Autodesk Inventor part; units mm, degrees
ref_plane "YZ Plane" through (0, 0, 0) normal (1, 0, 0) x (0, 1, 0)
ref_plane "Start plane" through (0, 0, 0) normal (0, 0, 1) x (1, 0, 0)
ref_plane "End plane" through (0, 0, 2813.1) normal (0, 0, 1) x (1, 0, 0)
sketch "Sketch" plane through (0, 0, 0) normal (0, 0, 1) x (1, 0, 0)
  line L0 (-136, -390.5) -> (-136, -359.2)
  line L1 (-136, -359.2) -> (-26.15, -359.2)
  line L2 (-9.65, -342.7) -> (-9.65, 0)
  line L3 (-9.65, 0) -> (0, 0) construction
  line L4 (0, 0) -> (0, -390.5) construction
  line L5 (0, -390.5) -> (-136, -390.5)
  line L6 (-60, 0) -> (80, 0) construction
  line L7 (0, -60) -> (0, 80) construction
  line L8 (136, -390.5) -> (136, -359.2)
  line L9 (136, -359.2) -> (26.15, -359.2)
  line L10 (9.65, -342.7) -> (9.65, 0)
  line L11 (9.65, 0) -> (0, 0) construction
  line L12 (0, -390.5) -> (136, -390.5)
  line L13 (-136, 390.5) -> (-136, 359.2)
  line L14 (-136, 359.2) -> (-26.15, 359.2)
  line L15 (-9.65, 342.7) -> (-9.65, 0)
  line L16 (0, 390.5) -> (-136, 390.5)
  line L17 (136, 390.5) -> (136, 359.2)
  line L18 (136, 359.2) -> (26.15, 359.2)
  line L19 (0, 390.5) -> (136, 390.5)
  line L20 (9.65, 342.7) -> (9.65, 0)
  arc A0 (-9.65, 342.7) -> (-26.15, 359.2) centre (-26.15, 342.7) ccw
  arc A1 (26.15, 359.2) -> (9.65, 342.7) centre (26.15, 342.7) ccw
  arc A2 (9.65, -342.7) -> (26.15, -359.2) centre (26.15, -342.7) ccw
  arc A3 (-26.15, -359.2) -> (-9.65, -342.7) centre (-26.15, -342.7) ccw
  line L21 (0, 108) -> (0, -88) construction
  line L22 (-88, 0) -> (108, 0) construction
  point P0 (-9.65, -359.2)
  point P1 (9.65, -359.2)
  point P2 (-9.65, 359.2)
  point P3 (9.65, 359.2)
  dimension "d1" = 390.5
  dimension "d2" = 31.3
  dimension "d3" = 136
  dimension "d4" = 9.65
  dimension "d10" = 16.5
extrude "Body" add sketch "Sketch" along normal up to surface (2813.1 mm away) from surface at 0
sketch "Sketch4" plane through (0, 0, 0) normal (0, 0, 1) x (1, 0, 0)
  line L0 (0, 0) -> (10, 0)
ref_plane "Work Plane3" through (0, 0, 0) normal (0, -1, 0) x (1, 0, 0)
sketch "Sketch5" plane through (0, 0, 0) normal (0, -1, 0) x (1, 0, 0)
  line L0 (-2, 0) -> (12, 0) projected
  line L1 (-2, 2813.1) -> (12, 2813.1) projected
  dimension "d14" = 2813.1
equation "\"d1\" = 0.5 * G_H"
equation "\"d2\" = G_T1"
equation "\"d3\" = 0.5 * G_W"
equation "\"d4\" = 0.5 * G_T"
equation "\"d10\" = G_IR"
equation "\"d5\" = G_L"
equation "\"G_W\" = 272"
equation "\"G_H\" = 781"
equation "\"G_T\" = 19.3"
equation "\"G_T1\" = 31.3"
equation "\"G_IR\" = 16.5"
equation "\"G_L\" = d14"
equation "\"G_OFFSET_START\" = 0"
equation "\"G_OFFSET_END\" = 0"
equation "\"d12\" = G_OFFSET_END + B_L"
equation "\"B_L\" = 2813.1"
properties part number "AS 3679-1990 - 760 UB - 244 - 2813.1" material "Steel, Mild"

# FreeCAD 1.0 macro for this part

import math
import FreeCAD as App
import Part
import Sketcher

V = App.Vector
Q = App.Units.Quantity

doc = App.newDocument("Part")
body = doc.addObject("PartDesign::Body", "Body")

# Sketch on XY plane
sketch1 = body.newObject("Sketcher::SketchObject", "Sketch")
sketch1.AttachmentSupport = (doc.getObject("XY_Plane"), [""])
sketch1.MapMode = "FlatFace"
sketch1.addGeometry([
    Part.LineSegment(V(-136, -359.2, 0), V(-136, -390.5, 0)),  # 0
    Part.LineSegment(V(-136, -390.5, 0), V(136, -390.5, 0)),  # 1
    Part.LineSegment(V(136, -390.5, 0), V(136, -359.2, 0)),  # 2
    Part.LineSegment(V(136, -359.2, 0), V(26.15, -359.2, 0)),  # 3
    Part.ArcOfCircle(Part.Circle(V(26.15, -342.7, 0), V(0, 0, 1), 16.5), math.radians(180), math.radians(270)),  # 4
    Part.LineSegment(V(9.65, -342.7, 0), V(9.65, 342.7, 0)),  # 5
    Part.ArcOfCircle(Part.Circle(V(26.15, 342.7, 0), V(0, 0, 1), 16.5), math.radians(90), math.radians(180)),  # 6
    Part.LineSegment(V(26.15, 359.2, 0), V(136, 359.2, 0)),  # 7
    Part.LineSegment(V(136, 359.2, 0), V(136, 390.5, 0)),  # 8
    Part.LineSegment(V(136, 390.5, 0), V(-136, 390.5, 0)),  # 9
    Part.LineSegment(V(-136, 390.5, 0), V(-136, 359.2, 0)),  # 10
    Part.LineSegment(V(-136, 359.2, 0), V(-26.15, 359.2, 0)),  # 11
    Part.ArcOfCircle(Part.Circle(V(-26.15, 342.7, 0), V(0, 0, 1), 16.5), math.radians(0), math.radians(90)),  # 12
    Part.LineSegment(V(-9.65, 342.7, 0), V(-9.65, -342.7, 0)),  # 13
    Part.ArcOfCircle(Part.Circle(V(-26.15, -342.7, 0), V(0, 0, 1), 16.5), math.radians(-90), math.radians(0)),  # 14
    Part.LineSegment(V(-26.15, -359.2, 0), V(-136, -359.2, 0)),  # 15
], False)
sketch1.addConstraint([
    Sketcher.Constraint("Coincident", 0, 2, 1, 1),
    Sketcher.Constraint("Coincident", 1, 2, 2, 1),
    Sketcher.Constraint("Coincident", 2, 2, 3, 1),
    Sketcher.Constraint("Tangent", 3, 2, 4, 2),
    Sketcher.Constraint("Tangent", 4, 1, 5, 1),
    Sketcher.Constraint("Tangent", 5, 2, 6, 2),
    Sketcher.Constraint("Tangent", 6, 1, 7, 1),
    Sketcher.Constraint("Coincident", 7, 2, 8, 1),
    Sketcher.Constraint("Coincident", 8, 2, 9, 1),
    Sketcher.Constraint("Coincident", 9, 2, 10, 1),
    Sketcher.Constraint("Coincident", 10, 2, 11, 1),
    Sketcher.Constraint("Tangent", 11, 2, 12, 2),
    Sketcher.Constraint("Tangent", 12, 1, 13, 1),
    Sketcher.Constraint("Tangent", 13, 2, 14, 2),
    Sketcher.Constraint("Tangent", 14, 1, 15, 1),
    Sketcher.Constraint("Coincident", 15, 2, 0, 1),
    Sketcher.Constraint("Vertical", 0),
    Sketcher.Constraint("Horizontal", 1),
    Sketcher.Constraint("Vertical", 2),
    Sketcher.Constraint("Horizontal", 3),
    Sketcher.Constraint("Vertical", 5),
    Sketcher.Constraint("Horizontal", 7),
    Sketcher.Constraint("Vertical", 8),
    Sketcher.Constraint("Horizontal", 9),
    Sketcher.Constraint("Vertical", 10),
    Sketcher.Constraint("Horizontal", 11),
    Sketcher.Constraint("Vertical", 13),
    Sketcher.Constraint("Horizontal", 15),
    Sketcher.Constraint("Equal", 4, 6),
    Sketcher.Constraint("Equal", 6, 12),
    Sketcher.Constraint("Equal", 12, 14),
    Sketcher.Constraint("Symmetric", 4, 3, 12, 3, -1, 1),
    Sketcher.Constraint("Symmetric", 0, 2, 8, 2, -1, 1),
    Sketcher.Constraint("Symmetric", 7, 2, 10, 2, -2),
    Sketcher.Constraint("Symmetric", 2, 2, 15, 2, -2),
    Sketcher.Constraint("Radius", 4, Q("16.5 mm")),
    Sketcher.Constraint("DistanceY", 0, 2, 0, 1, Q("31.3 mm")),
    Sketcher.Constraint("DistanceX", 0, 2, -1, 1, Q("136 mm")),
    Sketcher.Constraint("DistanceY", 0, 2, -1, 1, Q("390.5 mm")),
    Sketcher.Constraint("DistanceX", -1, 1, 4, 1, Q("9.65 mm")),
])
pad1 = body.newObject("PartDesign::Pad", "Pad")
pad1.Profile = sketch1
pad1.Length = 2813.1

doc.recompute()
